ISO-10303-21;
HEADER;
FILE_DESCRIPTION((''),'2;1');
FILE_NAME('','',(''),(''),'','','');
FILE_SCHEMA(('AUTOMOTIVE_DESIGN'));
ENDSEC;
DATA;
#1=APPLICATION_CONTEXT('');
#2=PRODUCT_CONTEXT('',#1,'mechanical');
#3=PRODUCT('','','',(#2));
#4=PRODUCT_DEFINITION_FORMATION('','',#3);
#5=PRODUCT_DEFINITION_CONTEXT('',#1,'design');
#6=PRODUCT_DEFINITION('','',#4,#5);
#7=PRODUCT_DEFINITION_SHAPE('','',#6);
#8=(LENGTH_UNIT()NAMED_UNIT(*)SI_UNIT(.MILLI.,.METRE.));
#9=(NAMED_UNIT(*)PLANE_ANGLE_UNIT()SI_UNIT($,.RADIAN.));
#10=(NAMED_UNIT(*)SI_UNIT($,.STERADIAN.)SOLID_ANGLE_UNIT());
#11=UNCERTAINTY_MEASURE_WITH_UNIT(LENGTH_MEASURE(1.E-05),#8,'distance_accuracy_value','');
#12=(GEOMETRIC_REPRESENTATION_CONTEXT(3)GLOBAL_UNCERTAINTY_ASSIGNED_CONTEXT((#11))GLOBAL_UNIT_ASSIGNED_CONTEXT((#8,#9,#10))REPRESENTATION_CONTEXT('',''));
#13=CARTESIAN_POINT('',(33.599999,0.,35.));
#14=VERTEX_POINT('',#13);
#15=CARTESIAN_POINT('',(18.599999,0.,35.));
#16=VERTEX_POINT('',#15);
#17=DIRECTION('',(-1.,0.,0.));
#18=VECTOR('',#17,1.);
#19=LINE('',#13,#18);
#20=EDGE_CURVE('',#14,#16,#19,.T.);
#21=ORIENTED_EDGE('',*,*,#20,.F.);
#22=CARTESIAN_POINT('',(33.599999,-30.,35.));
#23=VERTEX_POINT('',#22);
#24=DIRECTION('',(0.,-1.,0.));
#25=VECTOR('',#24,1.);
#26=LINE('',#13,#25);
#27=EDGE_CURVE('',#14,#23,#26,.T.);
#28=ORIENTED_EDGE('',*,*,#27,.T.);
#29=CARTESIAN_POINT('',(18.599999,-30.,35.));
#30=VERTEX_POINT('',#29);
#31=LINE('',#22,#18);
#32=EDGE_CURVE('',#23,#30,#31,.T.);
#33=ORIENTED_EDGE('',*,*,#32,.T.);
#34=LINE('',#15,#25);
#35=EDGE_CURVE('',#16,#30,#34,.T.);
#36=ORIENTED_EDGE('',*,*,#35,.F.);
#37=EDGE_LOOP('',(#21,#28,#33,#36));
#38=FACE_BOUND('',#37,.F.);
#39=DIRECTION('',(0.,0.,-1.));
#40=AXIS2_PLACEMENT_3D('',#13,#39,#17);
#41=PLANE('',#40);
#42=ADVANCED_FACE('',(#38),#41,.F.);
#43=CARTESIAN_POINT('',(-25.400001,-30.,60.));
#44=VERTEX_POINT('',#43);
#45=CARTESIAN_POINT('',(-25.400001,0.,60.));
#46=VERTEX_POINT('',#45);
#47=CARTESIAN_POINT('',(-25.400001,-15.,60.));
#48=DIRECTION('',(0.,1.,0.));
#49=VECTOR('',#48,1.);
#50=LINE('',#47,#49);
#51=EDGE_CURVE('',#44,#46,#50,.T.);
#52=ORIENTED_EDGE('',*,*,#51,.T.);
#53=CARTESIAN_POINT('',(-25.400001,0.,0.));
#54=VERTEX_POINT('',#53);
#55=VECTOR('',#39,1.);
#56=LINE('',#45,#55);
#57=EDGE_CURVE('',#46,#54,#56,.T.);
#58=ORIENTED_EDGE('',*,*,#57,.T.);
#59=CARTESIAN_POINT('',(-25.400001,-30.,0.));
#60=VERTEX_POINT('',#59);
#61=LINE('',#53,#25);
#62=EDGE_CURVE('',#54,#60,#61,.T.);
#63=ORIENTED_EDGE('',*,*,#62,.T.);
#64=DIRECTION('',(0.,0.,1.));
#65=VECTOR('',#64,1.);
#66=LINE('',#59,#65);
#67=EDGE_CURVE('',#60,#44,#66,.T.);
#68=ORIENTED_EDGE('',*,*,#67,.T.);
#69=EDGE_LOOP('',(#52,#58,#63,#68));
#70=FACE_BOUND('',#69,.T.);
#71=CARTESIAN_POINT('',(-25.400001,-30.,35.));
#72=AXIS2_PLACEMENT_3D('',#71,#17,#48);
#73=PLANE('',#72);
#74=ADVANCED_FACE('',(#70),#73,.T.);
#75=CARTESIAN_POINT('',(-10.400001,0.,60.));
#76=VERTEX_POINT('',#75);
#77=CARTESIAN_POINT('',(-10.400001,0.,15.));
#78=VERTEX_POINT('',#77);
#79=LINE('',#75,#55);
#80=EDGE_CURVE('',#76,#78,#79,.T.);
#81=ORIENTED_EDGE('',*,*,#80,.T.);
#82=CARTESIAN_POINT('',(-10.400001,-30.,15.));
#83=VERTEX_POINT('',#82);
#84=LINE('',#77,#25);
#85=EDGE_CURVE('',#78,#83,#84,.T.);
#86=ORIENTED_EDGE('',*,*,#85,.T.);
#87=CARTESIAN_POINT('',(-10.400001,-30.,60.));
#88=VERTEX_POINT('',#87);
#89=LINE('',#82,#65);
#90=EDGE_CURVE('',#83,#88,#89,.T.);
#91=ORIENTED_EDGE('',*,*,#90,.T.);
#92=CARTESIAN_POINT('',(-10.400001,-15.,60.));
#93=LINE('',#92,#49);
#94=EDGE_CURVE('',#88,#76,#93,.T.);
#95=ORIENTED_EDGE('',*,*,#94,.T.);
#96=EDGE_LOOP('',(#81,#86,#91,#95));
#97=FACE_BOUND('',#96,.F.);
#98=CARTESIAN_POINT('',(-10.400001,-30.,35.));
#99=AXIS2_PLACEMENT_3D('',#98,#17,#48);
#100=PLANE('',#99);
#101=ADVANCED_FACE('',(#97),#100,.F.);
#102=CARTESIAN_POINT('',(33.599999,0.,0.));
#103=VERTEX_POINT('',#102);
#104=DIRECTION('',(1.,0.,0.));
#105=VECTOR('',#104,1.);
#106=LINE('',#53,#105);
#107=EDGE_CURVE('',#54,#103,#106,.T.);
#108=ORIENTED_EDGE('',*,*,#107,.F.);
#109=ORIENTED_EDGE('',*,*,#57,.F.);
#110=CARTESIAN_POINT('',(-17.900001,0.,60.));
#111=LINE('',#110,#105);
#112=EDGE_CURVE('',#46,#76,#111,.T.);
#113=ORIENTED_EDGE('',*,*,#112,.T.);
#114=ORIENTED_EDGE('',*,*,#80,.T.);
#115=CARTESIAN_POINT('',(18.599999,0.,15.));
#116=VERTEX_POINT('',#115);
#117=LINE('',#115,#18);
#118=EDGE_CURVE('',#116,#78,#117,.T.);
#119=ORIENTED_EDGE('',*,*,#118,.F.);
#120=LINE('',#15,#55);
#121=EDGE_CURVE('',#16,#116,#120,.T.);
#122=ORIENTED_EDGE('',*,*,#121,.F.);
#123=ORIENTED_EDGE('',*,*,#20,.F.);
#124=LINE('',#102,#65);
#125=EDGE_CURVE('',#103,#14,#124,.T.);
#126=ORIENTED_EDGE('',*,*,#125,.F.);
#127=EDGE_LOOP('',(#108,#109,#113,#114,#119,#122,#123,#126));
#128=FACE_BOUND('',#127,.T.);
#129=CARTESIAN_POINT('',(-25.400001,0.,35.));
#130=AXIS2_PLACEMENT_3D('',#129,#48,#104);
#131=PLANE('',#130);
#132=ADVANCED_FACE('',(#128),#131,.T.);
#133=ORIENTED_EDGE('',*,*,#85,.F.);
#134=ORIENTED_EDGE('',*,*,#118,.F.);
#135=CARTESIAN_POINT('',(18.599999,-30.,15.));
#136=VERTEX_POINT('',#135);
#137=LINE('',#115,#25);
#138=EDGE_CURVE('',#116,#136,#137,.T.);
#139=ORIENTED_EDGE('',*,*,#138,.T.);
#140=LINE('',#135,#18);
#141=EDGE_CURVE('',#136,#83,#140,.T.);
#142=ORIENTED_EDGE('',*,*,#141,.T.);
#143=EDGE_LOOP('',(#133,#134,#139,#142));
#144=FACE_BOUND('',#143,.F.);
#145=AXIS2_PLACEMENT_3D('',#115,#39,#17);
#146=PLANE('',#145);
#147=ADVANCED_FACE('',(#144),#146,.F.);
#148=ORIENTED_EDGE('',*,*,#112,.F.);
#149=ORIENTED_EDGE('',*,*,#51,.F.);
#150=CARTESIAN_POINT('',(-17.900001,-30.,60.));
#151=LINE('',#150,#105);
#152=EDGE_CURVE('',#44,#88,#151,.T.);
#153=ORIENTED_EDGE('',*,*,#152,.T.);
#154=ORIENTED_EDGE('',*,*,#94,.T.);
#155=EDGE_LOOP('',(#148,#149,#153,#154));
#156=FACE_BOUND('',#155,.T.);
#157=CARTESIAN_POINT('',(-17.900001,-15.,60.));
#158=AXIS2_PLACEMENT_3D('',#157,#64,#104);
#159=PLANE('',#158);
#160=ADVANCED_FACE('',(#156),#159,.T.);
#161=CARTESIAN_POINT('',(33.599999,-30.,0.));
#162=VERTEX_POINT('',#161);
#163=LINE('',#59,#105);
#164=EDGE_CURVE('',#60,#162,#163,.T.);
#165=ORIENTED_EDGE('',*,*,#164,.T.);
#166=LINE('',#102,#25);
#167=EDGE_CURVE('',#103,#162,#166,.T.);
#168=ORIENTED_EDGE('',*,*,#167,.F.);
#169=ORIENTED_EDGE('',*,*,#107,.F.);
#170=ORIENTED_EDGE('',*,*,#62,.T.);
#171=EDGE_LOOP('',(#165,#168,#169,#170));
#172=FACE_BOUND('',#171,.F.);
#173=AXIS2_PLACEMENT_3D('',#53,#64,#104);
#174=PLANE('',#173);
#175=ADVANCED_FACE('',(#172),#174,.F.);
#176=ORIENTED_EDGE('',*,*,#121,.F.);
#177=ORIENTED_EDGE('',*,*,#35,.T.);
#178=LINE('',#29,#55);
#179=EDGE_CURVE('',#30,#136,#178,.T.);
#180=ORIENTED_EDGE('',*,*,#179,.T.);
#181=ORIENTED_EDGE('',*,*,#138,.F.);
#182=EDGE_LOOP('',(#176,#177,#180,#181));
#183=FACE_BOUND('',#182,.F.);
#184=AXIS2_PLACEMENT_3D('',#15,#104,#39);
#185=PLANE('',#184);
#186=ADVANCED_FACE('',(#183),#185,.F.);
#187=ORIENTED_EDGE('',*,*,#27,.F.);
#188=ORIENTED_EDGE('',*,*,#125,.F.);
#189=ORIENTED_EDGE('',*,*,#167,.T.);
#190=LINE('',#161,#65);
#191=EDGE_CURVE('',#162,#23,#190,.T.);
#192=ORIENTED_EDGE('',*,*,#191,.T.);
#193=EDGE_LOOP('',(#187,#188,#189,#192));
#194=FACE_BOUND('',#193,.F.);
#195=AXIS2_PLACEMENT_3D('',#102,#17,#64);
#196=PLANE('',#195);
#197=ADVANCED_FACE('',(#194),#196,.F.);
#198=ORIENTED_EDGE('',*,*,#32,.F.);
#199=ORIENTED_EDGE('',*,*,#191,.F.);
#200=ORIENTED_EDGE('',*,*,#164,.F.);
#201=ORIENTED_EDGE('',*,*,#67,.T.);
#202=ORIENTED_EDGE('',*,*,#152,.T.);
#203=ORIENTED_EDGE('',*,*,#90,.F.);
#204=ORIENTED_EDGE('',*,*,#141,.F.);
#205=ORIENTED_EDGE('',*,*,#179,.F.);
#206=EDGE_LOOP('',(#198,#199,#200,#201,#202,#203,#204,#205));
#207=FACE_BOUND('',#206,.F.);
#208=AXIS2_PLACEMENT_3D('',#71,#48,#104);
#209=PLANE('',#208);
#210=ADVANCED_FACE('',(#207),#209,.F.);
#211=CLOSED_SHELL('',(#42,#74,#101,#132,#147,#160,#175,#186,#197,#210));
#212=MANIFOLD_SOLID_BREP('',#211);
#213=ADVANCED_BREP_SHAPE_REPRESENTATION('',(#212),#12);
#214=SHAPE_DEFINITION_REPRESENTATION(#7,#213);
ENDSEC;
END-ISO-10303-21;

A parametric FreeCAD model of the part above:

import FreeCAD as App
import Part
import Sketcher
from FreeCAD import Vector

doc = App.newDocument("Part")
body = doc.addObject("PartDesign::Body", "Body")

sketch1 = doc.addObject("Sketcher::SketchObject", "Sketch")
body.addObject(sketch1)
sketch1.AttachmentSupport = (doc.XZ_Plane, [""])
sketch1.MapMode = "FlatFace"
sketch1.addGeometry([
    Part.LineSegment(Vector(-25, 0, 0), Vector(34, 0, 0)),
    Part.LineSegment(Vector(34, 0, 0), Vector(34, 35, 0)),
    Part.LineSegment(Vector(34, 35, 0), Vector(19, 35, 0)),
    Part.LineSegment(Vector(19, 35, 0), Vector(19, 15, 0)),
    Part.LineSegment(Vector(19, 15, 0), Vector(-10, 15, 0)),
    Part.LineSegment(Vector(-10, 15, 0), Vector(-10, 35, 0)),
    Part.LineSegment(Vector(-10, 35, 0), Vector(-25, 35, 0)),
    Part.LineSegment(Vector(-25, 35, 0), Vector(-25, 0, 0)),
], False)
sketch1.addConstraint([
    Sketcher.Constraint("Coincident", 0, 2, 1, 1),
    Sketcher.Constraint("Coincident", 1, 2, 2, 1),
    Sketcher.Constraint("Coincident", 2, 2, 3, 1),
    Sketcher.Constraint("Coincident", 3, 2, 4, 1),
    Sketcher.Constraint("Coincident", 4, 2, 5, 1),
    Sketcher.Constraint("Coincident", 5, 2, 6, 1),
    Sketcher.Constraint("Coincident", 6, 2, 7, 1),
    Sketcher.Constraint("Coincident", 7, 2, 0, 1),
    Sketcher.Constraint("Horizontal", 0),
    Sketcher.Constraint("Vertical", 1),
    Sketcher.Constraint("Horizontal", 2),
    Sketcher.Constraint("Vertical", 3),
    Sketcher.Constraint("Horizontal", 4),
    Sketcher.Constraint("Vertical", 5),
    Sketcher.Constraint("Horizontal", 6),
    Sketcher.Constraint("Vertical", 7),
    Sketcher.Constraint("PointOnObject", 0, 2, -1),
    Sketcher.Constraint("Horizontal", 2, 2, 5, 2),
    Sketcher.Constraint("Equal", 2, 6),
    Sketcher.Constraint("DistanceX", 0, 1, 0, 2, 59.0),
    Sketcher.Constraint("DistanceX", 2, 2, 2, 1, 15.0),
    Sketcher.Constraint("DistanceY", 1, 1, 1, 2, 35.0),
    Sketcher.Constraint("DistanceY", 3, 2, 3, 1, 20.0),
    Sketcher.Constraint("DistanceX", -1, 1, 0, 2, 33.599999),
])
pad1 = doc.addObject("PartDesign::Pad", "Pad")
body.addObject(pad1)
pad1.Profile = sketch1
pad1.Length = 30

sketch2 = doc.addObject("Sketcher::SketchObject", "Sketch001")
body.addObject(sketch2)
sketch2.AttachmentSupport = (doc.XY_Plane, [""])
sketch2.MapMode = "FlatFace"
sketch2.AttachmentOffset = App.Placement(Vector(0, 0, 35), App.Rotation())
sketch2.addGeometry([
    Part.LineSegment(Vector(-25, 0, 0), Vector(-25, -30, 0)),
    Part.LineSegment(Vector(-25, -30, 0), Vector(-10, -30, 0)),
    Part.LineSegment(Vector(-10, -30, 0), Vector(-10, 0, 0)),
    Part.LineSegment(Vector(-10, 0, 0), Vector(-25, 0, 0)),
], False)
sketch2.addConstraint([
    Sketcher.Constraint("Coincident", 0, 2, 1, 1),
    Sketcher.Constraint("Coincident", 1, 2, 2, 1),
    Sketcher.Constraint("Coincident", 2, 2, 3, 1),
    Sketcher.Constraint("Coincident", 3, 2, 0, 1),
    Sketcher.Constraint("Vertical", 0),
    Sketcher.Constraint("Horizontal", 1),
    Sketcher.Constraint("Vertical", 2),
    Sketcher.Constraint("Horizontal", 3),
    Sketcher.Constraint("PointOnObject", 2, 2, -1),
    Sketcher.Constraint("DistanceX", 1, 1, 1, 2, 15.0),
    Sketcher.Constraint("DistanceY", 0, 2, 0, 1, 30.0),
    Sketcher.Constraint("DistanceX", 0, 2, -1, 1, 25.400001),
])
pad2 = doc.addObject("PartDesign::Pad", "Pad001")
body.addObject(pad2)
pad2.Profile = sketch2
pad2.Length = 25

doc.recompute()
